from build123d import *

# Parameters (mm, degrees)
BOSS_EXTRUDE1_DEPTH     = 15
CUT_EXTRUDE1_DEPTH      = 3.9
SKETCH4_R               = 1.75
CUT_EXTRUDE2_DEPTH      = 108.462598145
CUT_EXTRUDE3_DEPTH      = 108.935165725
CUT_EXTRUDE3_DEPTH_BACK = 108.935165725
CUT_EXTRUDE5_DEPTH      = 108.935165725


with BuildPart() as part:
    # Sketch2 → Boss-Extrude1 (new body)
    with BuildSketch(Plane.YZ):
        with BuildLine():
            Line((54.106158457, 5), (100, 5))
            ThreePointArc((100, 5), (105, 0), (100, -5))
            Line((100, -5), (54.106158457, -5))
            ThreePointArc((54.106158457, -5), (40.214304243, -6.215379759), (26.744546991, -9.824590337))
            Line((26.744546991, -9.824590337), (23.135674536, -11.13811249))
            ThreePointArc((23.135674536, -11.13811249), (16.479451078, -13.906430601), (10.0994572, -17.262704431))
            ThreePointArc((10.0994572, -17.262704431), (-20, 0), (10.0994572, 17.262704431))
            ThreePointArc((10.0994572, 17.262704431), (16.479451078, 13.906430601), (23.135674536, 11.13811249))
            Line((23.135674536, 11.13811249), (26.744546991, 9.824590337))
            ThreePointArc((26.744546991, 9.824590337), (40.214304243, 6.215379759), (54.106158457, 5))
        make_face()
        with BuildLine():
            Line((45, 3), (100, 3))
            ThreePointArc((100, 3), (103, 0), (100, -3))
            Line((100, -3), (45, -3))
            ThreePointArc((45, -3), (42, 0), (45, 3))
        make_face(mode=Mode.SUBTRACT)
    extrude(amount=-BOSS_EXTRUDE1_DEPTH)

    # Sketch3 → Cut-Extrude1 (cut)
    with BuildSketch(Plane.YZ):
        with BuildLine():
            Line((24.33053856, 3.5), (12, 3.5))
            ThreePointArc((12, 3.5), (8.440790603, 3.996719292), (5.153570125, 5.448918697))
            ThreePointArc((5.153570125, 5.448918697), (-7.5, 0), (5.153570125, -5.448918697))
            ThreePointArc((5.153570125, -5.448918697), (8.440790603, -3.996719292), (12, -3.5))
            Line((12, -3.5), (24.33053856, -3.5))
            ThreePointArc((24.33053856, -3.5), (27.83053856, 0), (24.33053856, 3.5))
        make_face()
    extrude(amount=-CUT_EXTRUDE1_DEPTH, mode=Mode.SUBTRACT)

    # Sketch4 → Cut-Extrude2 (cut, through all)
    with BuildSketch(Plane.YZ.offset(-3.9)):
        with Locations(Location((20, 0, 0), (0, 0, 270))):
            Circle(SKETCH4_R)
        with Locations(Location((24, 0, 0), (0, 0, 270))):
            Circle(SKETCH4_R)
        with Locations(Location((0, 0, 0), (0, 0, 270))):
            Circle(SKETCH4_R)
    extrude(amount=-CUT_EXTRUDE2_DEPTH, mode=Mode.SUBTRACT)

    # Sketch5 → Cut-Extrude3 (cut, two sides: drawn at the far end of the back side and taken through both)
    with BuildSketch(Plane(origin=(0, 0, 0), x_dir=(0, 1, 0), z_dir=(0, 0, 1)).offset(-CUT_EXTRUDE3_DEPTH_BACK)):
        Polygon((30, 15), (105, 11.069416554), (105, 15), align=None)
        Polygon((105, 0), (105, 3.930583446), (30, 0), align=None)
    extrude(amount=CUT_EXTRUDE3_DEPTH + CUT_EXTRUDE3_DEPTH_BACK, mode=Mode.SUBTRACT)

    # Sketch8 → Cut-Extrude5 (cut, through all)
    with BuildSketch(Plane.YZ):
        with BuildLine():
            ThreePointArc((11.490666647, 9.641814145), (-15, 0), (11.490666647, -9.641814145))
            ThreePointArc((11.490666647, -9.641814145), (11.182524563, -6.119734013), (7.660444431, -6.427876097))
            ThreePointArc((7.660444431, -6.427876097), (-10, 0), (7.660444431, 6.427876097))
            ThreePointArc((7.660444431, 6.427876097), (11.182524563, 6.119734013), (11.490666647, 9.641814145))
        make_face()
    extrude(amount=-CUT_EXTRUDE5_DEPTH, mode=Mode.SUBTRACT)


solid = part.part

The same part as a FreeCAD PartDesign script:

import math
import FreeCAD as App
import Part
import Sketcher

V = App.Vector
Q = App.Units.Quantity

doc = App.newDocument("Part")
body = doc.addObject("PartDesign::Body", "Body")

# Sketch on YZ plane
sketch1 = doc.addObject("Sketcher::SketchObject", "Sketch")
body.addObject(sketch1)
sketch1.AttachmentSupport = (doc.YZ_Plane, [""])
sketch1.MapMode = "FlatFace"
sketch1.addGeometry([
    Part.LineSegment(V(100, 5, 0), V(54.106158, 5, 0)),  # 0
    Part.ArcOfCircle(Part.Circle(V(54.106158, 85, 0), V(0, 0, 1), 80), math.radians(-110), math.radians(-90)),  # 1
    Part.LineSegment(V(26.744547, 9.82459, 0), V(23.135675, 11.138112, 0)),  # 2
    Part.ArcOfCircle(Part.Circle(V(50.497286, 86.313522, 0), V(0, 0, 1), 80), math.radians(-120.329551), math.radians(-110)),  # 3
    Part.ArcOfCircle(Part.Circle(V(0, 0, 0), V(0, 0, 1), 20), math.radians(59.670449), math.radians(300.329551)),  # 4
    Part.ArcOfCircle(Part.Circle(V(50.497286, -86.313522, 0), V(0, 0, 1), 80), math.radians(110), math.radians(120.329551)),  # 5
    Part.LineSegment(V(23.135675, -11.138112, 0), V(26.744547, -9.82459, 0)),  # 6
    Part.ArcOfCircle(Part.Circle(V(54.106158, -85, 0), V(0, 0, 1), 80), math.radians(90), math.radians(110)),  # 7
    Part.LineSegment(V(54.106158, -5, 0), V(100, -5, 0)),  # 8
    Part.ArcOfCircle(Part.Circle(V(100, 0, 0), V(0, 0, 1), 5), math.radians(-90), math.radians(90)),  # 9
    Part.LineSegment(V(45, 3, 0), V(100, 3, 0)),  # 10
    Part.ArcOfCircle(Part.Circle(V(100, 0, 0), V(0, 0, 1), 3), math.radians(-90), math.radians(90)),  # 11
    Part.LineSegment(V(100, -3, 0), V(45, -3, 0)),  # 12
    Part.ArcOfCircle(Part.Circle(V(45, 0, 0), V(0, 0, 1), 3), math.radians(90), math.radians(270)),  # 13
], False)
sketch1.addConstraint([
    Sketcher.Constraint("Tangent", 0, 2, 1, 2),
    Sketcher.Constraint("Tangent", 1, 1, 2, 1),
    Sketcher.Constraint("Tangent", 2, 2, 3, 2),
    Sketcher.Constraint("Tangent", 3, 1, 4, 1),
    Sketcher.Constraint("Tangent", 4, 2, 5, 2),
    Sketcher.Constraint("Tangent", 5, 1, 6, 1),
    Sketcher.Constraint("Tangent", 6, 2, 7, 2),
    Sketcher.Constraint("Tangent", 7, 1, 8, 1),
    Sketcher.Constraint("Tangent", 8, 2, 9, 1),
    Sketcher.Constraint("Tangent", 9, 2, 0, 1),
    Sketcher.Constraint("Tangent", 10, 2, 11, 2),
    Sketcher.Constraint("Tangent", 11, 1, 12, 1),
    Sketcher.Constraint("Tangent", 12, 2, 13, 2),
    Sketcher.Constraint("Tangent", 13, 1, 10, 1),
    Sketcher.Constraint("Horizontal", 0),
    Sketcher.Constraint("Horizontal", 8),
    Sketcher.Constraint("Horizontal", 10),
    Sketcher.Constraint("Horizontal", 12),
    Sketcher.Constraint("Coincident", 4, 3, -1, 1),
    Sketcher.Constraint("Coincident", 11, 3, 9, 3),
    Sketcher.Constraint("Equal", 1, 3),
    Sketcher.Constraint("Equal", 3, 5),
    Sketcher.Constraint("Equal", 5, 7),
    Sketcher.Constraint("Symmetric", 1, 3, 7, 3, -1),
    Sketcher.Constraint("Vertical", 3, 3, 5, 3),
    Sketcher.Constraint("Radius", 1, 80.0),
    Sketcher.Constraint("Radius", 4, 20.0),
    Sketcher.Constraint("Radius", 9, 5.0),
    Sketcher.Constraint("Radius", 11, 3.0),
    Sketcher.Constraint("DistanceX", 10, 1, 10, 2, 55.0),
    Sketcher.Constraint("Angle", 2, Q("160 deg")),
    Sketcher.Constraint("DistanceX", -1, 1, 9, 3, 100.0),
    Sketcher.Constraint("DistanceX", 0, 2, 0, 1, 45.893842),
])
pad1 = doc.addObject("PartDesign::Pad", "Pad")
body.addObject(pad1)
pad1.Profile = sketch1
pad1.Length = 15
pad1.Reversed = True

# Sketch on YZ plane
sketch2 = doc.addObject("Sketcher::SketchObject", "Sketch001")
body.addObject(sketch2)
sketch2.AttachmentSupport = (doc.YZ_Plane, [""])
sketch2.MapMode = "FlatFace"
sketch2.addGeometry([
    Part.LineSegment(V(24.330539, 3.5, 0), V(12, 3.5, 0)),  # 0
    Part.ArcOfCircle(Part.Circle(V(12, 16.5, 0), V(0, 0, 1), 13), math.radians(-121.779283), math.radians(-90)),  # 1
    Part.ArcOfCircle(Part.Circle(V(0, 0, 0), V(0, 0, 1), 7.5), math.radians(46.595649), math.radians(313.404351)),  # 2
    Part.ArcOfCircle(Part.Circle(V(12, -16.5, 0), V(0, 0, 1), 13), math.radians(90), math.radians(121.779283)),  # 3
    Part.LineSegment(V(12, -3.5, 0), V(24.330539, -3.5, 0)),  # 4
    Part.ArcOfCircle(Part.Circle(V(24.330539, 0, 0), V(0, 0, 1), 3.5), math.radians(-90), math.radians(90)),  # 5
], False)
sketch2.addConstraint([
    Sketcher.Constraint("Tangent", 0, 2, 1, 2),
    Sketcher.Constraint("Coincident", 1, 1, 2, 1),
    Sketcher.Constraint("Coincident", 2, 2, 3, 2),
    Sketcher.Constraint("Tangent", 3, 1, 4, 1),
    Sketcher.Constraint("Tangent", 4, 2, 5, 1),
    Sketcher.Constraint("Tangent", 5, 2, 0, 1),
    Sketcher.Constraint("Horizontal", 0),
    Sketcher.Constraint("Horizontal", 4),
    Sketcher.Constraint("Coincident", 2, 3, -1, 1),
    Sketcher.Constraint("Equal", 1, 3),
    Sketcher.Constraint("Symmetric", 1, 3, 3, 3, -1),
    Sketcher.Constraint("Radius", 1, 13.0),
    Sketcher.Constraint("Radius", 2, 7.5),
    Sketcher.Constraint("Radius", 5, 3.5),
    Sketcher.Constraint("DistanceX", -1, 1, 1, 3, 12.0),
    Sketcher.Constraint("DistanceX", 0, 2, 0, 1, 12.330539),
])
pocket1 = doc.addObject("PartDesign::Pocket", "Pocket")
body.addObject(pocket1)
pocket1.Profile = sketch2
pocket1.Length = 3.9

# Sketch on YZ plane
sketch3 = doc.addObject("Sketcher::SketchObject", "Sketch002")
body.addObject(sketch3)
sketch3.AttachmentSupport = (doc.YZ_Plane, [""])
sketch3.MapMode = "FlatFace"
sketch3.AttachmentOffset = App.Placement(V(0, 0, -3.9), App.Rotation())
sketch3.addGeometry([
    Part.Circle(V(20, 0, 0), V(0, 0, 1), 1.75),
    Part.Circle(V(24, 0, 0), V(0, 0, 1), 1.75),
    Part.Circle(V(0, 0, 0), V(0, 0, 1), 1.75),
], False)
sketch3.addConstraint([
    Sketcher.Constraint("Coincident", 2, 3, -1, 1),
    Sketcher.Constraint("Equal", 0, 1),
    Sketcher.Constraint("Equal", 1, 2),
    Sketcher.Constraint("PointOnObject", 0, 3, -1),
    Sketcher.Constraint("PointOnObject", 1, 3, -1),
    Sketcher.Constraint("Diameter", 0, 3.5),
    Sketcher.Constraint("DistanceX", -1, 1, 0, 3, 20.0),
    Sketcher.Constraint("DistanceX", -1, 1, 1, 3, 24.0),
])
pocket2 = doc.addObject("PartDesign::Pocket", "Pocket001")
body.addObject(pocket2)
pocket2.Profile = sketch3
pocket2.Type = "ThroughAll"

# Sketch on XY plane
sketch4 = doc.addObject("Sketcher::SketchObject", "Sketch003")
body.addObject(sketch4)
sketch4.AttachmentSupport = (doc.XY_Plane, [""])
sketch4.MapMode = "FlatFace"
sketch4.addGeometry([
    Part.LineSegment(V(-15, 30, 0), V(-11.069417, 105, 0)),  # 0
    Part.LineSegment(V(-11.069417, 105, 0), V(-15, 105, 0)),  # 1
    Part.LineSegment(V(-15, 105, 0), V(-15, 30, 0)),  # 2
    Part.LineSegment(V(0, 105, 0), V(-3.930583, 105, 0)),  # 3
    Part.LineSegment(V(-3.930583, 105, 0), V(0, 30, 0)),  # 4
    Part.LineSegment(V(0, 30, 0), V(0, 105, 0)),  # 5
], False)
sketch4.addConstraint([
    Sketcher.Constraint("Coincident", 0, 2, 1, 1),
    Sketcher.Constraint("Coincident", 1, 2, 2, 1),
    Sketcher.Constraint("Coincident", 2, 2, 0, 1),
    Sketcher.Constraint("Coincident", 3, 2, 4, 1),
    Sketcher.Constraint("Coincident", 4, 2, 5, 1),
    Sketcher.Constraint("Coincident", 5, 2, 3, 1),
    Sketcher.Constraint("Horizontal", 1),
    Sketcher.Constraint("Vertical", 2),
    Sketcher.Constraint("Horizontal", 3),
    Sketcher.Constraint("Vertical", 5),
    Sketcher.Constraint("PointOnObject", 4, 2, -2),
    Sketcher.Constraint("Horizontal", 1, 2, 3, 2),
    Sketcher.Constraint("Horizontal", 2, 2, 4, 2),
    Sketcher.Constraint("Equal", 1, 3),
    Sketcher.Constraint("DistanceY", 2, 2, 2, 1, 75.0),
    Sketcher.Constraint("Angle", 0, Q("87 deg")),
    Sketcher.Constraint("DistanceY", -1, 1, 0, 2, 105.0),
    Sketcher.Constraint("DistanceX", 1, 2, -1, 1, 15.0),
])
pocket3 = doc.addObject("PartDesign::Pocket", "Pocket002")
body.addObject(pocket3)
pocket3.Profile = sketch4
pocket3.Type = "ThroughAll"
pocket3.Midplane = True

# Sketch on YZ plane
sketch5 = doc.addObject("Sketcher::SketchObject", "Sketch004")
body.addObject(sketch5)
sketch5.AttachmentSupport = (doc.YZ_Plane, [""])
sketch5.MapMode = "FlatFace"
sketch5.addGeometry([
    Part.ArcOfCircle(Part.Circle(V(0, 0, 0), V(0, 0, 1), 15), math.radians(40), math.radians(320)),
    Part.ArcOfCircle(Part.Circle(V(9.575556, -8.034845, 0), V(0, 0, 1), 2.5), math.radians(-40), math.radians(140)),
    Part.ArcOfCircle(Part.Circle(V(0, 0, 0), V(0, 0, 1), 10), math.radians(40), math.radians(320)),
    Part.ArcOfCircle(Part.Circle(V(9.575556, 8.034845, 0), V(0, 0, 1), 2.5), math.radians(-140), math.radians(40)),
], False)
sketch5.addConstraint([
    Sketcher.Constraint("Tangent", 0, 2, 1, 1),
    Sketcher.Constraint("Tangent", 1, 2, 2, 2),
    Sketcher.Constraint("Tangent", 2, 1, 3, 1),
    Sketcher.Constraint("Tangent", 3, 2, 0, 1),
    Sketcher.Constraint("Coincident", 0, 3, -1, 1),
    Sketcher.Constraint("Coincident", 2, 3, -1, 1),
    Sketcher.Constraint("Vertical", 1, 3, 3, 3),
    Sketcher.Constraint("Radius", 0, 15.0),
    Sketcher.Constraint("Radius", 2, 10.0),
    Sketcher.Constraint("DistanceY", 1, 3, 3, 3, 16.06969),
])
pocket4 = doc.addObject("PartDesign::Pocket", "Pocket003")
body.addObject(pocket4)
pocket4.Profile = sketch5
pocket4.Type = "ThroughAll"

doc.recompute()
